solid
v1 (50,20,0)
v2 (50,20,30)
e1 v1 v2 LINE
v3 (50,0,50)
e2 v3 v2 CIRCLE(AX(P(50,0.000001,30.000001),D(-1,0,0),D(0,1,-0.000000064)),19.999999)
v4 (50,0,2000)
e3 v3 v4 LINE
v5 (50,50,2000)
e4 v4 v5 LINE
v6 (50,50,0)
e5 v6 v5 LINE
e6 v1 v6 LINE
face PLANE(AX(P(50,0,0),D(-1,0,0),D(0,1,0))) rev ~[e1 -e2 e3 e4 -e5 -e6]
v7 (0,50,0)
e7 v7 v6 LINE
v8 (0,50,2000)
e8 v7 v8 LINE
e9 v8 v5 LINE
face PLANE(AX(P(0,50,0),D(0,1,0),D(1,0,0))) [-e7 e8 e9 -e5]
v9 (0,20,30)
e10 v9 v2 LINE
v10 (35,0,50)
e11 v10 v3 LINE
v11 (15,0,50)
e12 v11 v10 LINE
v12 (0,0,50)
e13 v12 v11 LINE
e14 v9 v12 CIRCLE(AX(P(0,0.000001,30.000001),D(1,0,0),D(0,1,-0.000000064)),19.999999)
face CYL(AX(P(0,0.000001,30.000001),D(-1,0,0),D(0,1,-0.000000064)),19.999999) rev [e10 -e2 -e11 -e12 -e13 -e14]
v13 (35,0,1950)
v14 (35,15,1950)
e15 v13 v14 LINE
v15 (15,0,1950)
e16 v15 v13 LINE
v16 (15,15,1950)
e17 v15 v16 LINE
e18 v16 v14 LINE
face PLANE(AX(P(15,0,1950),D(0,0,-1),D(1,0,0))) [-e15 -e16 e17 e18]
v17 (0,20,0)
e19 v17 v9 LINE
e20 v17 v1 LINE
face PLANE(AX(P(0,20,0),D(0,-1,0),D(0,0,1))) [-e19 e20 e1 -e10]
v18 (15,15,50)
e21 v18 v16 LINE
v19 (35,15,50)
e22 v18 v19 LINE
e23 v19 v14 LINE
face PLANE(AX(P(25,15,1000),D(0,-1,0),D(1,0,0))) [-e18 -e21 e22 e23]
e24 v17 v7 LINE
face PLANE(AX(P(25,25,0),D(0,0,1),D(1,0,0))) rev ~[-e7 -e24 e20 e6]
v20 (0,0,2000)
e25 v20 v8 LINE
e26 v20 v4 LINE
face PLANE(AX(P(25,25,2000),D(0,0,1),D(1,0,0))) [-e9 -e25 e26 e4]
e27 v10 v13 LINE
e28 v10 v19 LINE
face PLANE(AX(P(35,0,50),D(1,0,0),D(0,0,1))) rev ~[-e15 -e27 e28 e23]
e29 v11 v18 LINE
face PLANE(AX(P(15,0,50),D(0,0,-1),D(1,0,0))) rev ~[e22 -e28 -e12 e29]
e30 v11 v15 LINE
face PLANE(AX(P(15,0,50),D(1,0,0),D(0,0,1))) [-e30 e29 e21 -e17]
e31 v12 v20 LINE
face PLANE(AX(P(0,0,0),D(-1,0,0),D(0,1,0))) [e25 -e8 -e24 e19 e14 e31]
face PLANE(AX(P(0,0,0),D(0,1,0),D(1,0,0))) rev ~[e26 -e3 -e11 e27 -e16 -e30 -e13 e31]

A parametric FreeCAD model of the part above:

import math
import FreeCAD as App
import Part
import Sketcher

doc = App.newDocument("Part")
body = doc.addObject("PartDesign::Body", "Body")

# Sketch on XY plane
sketch1 = doc.addObject("Sketcher::SketchObject", "Sketch")
body.addObject(sketch1)
sketch1.AttachmentSupport = (doc.XY_Plane, [""])
sketch1.MapMode = "FlatFace"
sketch1.addGeometry(Part.LineSegment(App.Vector(0, 50, 0), App.Vector(0, 0, 0)), False)
sketch1.addGeometry(Part.LineSegment(App.Vector(0, 0, 0), App.Vector(50, 0, 0)), False)
sketch1.addGeometry(Part.LineSegment(App.Vector(50, 0, 0), App.Vector(50, 50, 0)), False)
sketch1.addGeometry(Part.LineSegment(App.Vector(50, 50, 0), App.Vector(0, 50, 0)), False)
sketch1.addConstraint(Sketcher.Constraint("Coincident", 0, 2, 1, 1))
sketch1.addConstraint(Sketcher.Constraint("Coincident", 1, 2, 2, 1))
sketch1.addConstraint(Sketcher.Constraint("Coincident", 2, 2, 3, 1))
sketch1.addConstraint(Sketcher.Constraint("Coincident", 3, 2, 0, 1))
sketch1.addConstraint(Sketcher.Constraint("Vertical", 0))
sketch1.addConstraint(Sketcher.Constraint("Horizontal", 1))
sketch1.addConstraint(Sketcher.Constraint("Vertical", 2))
sketch1.addConstraint(Sketcher.Constraint("Horizontal", 3))
sketch1.addConstraint(Sketcher.Constraint("Coincident", 0, 2, -1, 1))
sketch1.addConstraint(Sketcher.Constraint("Equal", 3, 0))
sketch1.addConstraint(Sketcher.Constraint("DistanceX", 1, 1, 1, 2, 50.0))
pad1 = doc.addObject("PartDesign::Pad", "Pad")
body.addObject(pad1)
pad1.Profile = sketch1
pad1.Length = 2000

# Sketch on XZ plane
sketch2 = doc.addObject("Sketcher::SketchObject", "Sketch001")
body.addObject(sketch2)
sketch2.AttachmentSupport = (doc.XZ_Plane, [""])
sketch2.MapMode = "FlatFace"
sketch2.addGeometry(Part.LineSegment(App.Vector(15, 1950, 0), App.Vector(15, 50, 0)), False)
sketch2.addGeometry(Part.LineSegment(App.Vector(15, 50, 0), App.Vector(35, 50, 0)), False)
sketch2.addGeometry(Part.LineSegment(App.Vector(35, 50, 0), App.Vector(35, 1950, 0)), False)
sketch2.addGeometry(Part.LineSegment(App.Vector(35, 1950, 0), App.Vector(15, 1950, 0)), False)
sketch2.addConstraint(Sketcher.Constraint("Coincident", 0, 2, 1, 1))
sketch2.addConstraint(Sketcher.Constraint("Coincident", 1, 2, 2, 1))
sketch2.addConstraint(Sketcher.Constraint("Coincident", 2, 2, 3, 1))
sketch2.addConstraint(Sketcher.Constraint("Coincident", 3, 2, 0, 1))
sketch2.addConstraint(Sketcher.Constraint("Vertical", 0))
sketch2.addConstraint(Sketcher.Constraint("Horizontal", 1))
sketch2.addConstraint(Sketcher.Constraint("Vertical", 2))
sketch2.addConstraint(Sketcher.Constraint("Horizontal", 3))
sketch2.addConstraint(Sketcher.Constraint("DistanceX", 1, 1, 1, 2, 20.0))
sketch2.addConstraint(Sketcher.Constraint("DistanceY", 0, 2, 0, 1, 1900.0))
sketch2.addConstraint(Sketcher.Constraint("DistanceX", -1, 1, 0, 2, 15.0))
sketch2.addConstraint(Sketcher.Constraint("DistanceY", -1, 1, 0, 2, 50.0))
pocket1 = doc.addObject("PartDesign::Pocket", "Pocket")
body.addObject(pocket1)
pocket1.Profile = sketch2
pocket1.Length = 15

# Sketch on YZ plane
sketch3 = doc.addObject("Sketcher::SketchObject", "Sketch002")
body.addObject(sketch3)
sketch3.AttachmentSupport = (doc.YZ_Plane, [""])
sketch3.MapMode = "FlatFace"
sketch3.addGeometry(Part.LineSegment(App.Vector(0, 50, 0), App.Vector(0, 0, 0)), False)
sketch3.addGeometry(Part.LineSegment(App.Vector(0, 0, 0), App.Vector(20, 0, 0)), False)
sketch3.addGeometry(Part.LineSegment(App.Vector(20, 0, 0), App.Vector(20, 30, 0)), False)
sketch3.addGeometry(Part.ArcOfCircle(Part.Circle(App.Vector(0, 30, 0), App.Vector(0, 0, 1), 20), math.radians(0), math.radians(90)), False)
sketch3.addConstraint(Sketcher.Constraint("Coincident", 0, 2, 1, 1))
sketch3.addConstraint(Sketcher.Constraint("Coincident", 1, 2, 2, 1))
sketch3.addConstraint(Sketcher.Constraint("Tangent", 2, 2, 3, 1))
sketch3.addConstraint(Sketcher.Constraint("Coincident", 3, 2, 0, 1))
sketch3.addConstraint(Sketcher.Constraint("Vertical", 0))
sketch3.addConstraint(Sketcher.Constraint("Horizontal", 1))
sketch3.addConstraint(Sketcher.Constraint("Vertical", 2))
sketch3.addConstraint(Sketcher.Constraint("Coincident", 0, 2, -1, 1))
sketch3.addConstraint(Sketcher.Constraint("PointOnObject", 3, 3, -2))
sketch3.addConstraint(Sketcher.Constraint("Radius", 3, 19.999999))
sketch3.addConstraint(Sketcher.Constraint("DistanceY", 0, 2, 0, 1, 50.0))
pocket2 = doc.addObject("PartDesign::Pocket", "Pocket001")
body.addObject(pocket2)
pocket2.Profile = sketch3
pocket2.Type = "ThroughAll"
pocket2.Reversed = True

doc.recompute()
